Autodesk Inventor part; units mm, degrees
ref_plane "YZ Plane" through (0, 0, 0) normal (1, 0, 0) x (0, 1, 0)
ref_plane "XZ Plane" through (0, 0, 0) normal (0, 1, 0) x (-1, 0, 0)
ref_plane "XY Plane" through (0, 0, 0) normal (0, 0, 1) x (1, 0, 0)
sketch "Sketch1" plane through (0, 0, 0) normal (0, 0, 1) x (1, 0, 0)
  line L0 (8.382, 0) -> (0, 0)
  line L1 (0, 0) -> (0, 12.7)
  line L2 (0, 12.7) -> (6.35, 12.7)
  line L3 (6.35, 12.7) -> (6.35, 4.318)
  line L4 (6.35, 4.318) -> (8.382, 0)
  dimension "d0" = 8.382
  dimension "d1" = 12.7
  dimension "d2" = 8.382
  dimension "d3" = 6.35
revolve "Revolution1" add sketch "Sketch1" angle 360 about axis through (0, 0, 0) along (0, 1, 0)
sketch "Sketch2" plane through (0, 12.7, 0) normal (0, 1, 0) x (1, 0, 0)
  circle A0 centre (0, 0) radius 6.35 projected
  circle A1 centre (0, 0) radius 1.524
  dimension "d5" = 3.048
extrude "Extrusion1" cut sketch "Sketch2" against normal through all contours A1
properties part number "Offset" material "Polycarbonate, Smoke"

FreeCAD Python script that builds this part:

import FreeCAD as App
import Part
import Sketcher
Q = App.Units.Quantity


def add_polygon(sketch, points):
    """Adds a closed chain of lines whose ends are joined by coincident constraints."""
    first, n = sketch.GeometryCount, len(points)
    for a, b in zip(points, points[1:] + points[:1]):
        sketch.addGeometry(Part.LineSegment(App.Vector(*a, 0), App.Vector(*b, 0)), False)
    for i in range(n):
        sketch.addConstraint(Sketcher.Constraint("Coincident", first + i, 2, first + (i + 1) % n, 1))

doc = App.newDocument("Part")
body = doc.addObject("PartDesign::Body", "Body")

# Sketch on XY plane
sketch1 = body.newObject("Sketcher::SketchObject", "Sketch")
sketch1.AttachmentSupport = (doc.getObject("XY_Plane"), [""])
sketch1.MapMode = "FlatFace"
add_polygon(sketch1, [(0, 0), (8.382, 0), (6.35, 4.318), (6.35, 12.7), (0, 12.7)])  # lines 0-4
sketch1.addConstraint([
    Sketcher.Constraint("Horizontal", 0),
    Sketcher.Constraint("Vertical", 2),
    Sketcher.Constraint("Horizontal", 3),
    Sketcher.Constraint("Vertical", 4),
    Sketcher.Constraint("Coincident", 4, 2, -1, 1),
    Sketcher.Constraint("Equal", 0, 2),
    Sketcher.Constraint("DistanceY", 4, 2, 4, 1, Q("0.5 in")),
    Sketcher.Constraint("DistanceX", 0, 1, 0, 2, Q("0.33 in")),
    Sketcher.Constraint("DistanceX", 3, 2, 3, 1, Q("0.25 in")),
])
revolution = body.newObject("PartDesign::Revolution", "Revolution")
revolution.Profile = sketch1
revolution.ReferenceAxis = (sketch1, ["V_Axis"])
revolution.Angle = 360

# Sketch on XZ plane
sketch2 = body.newObject("Sketcher::SketchObject", "Sketch001")
sketch2.AttachmentSupport = (doc.getObject("XZ_Plane"), [""])
sketch2.MapMode = "FlatFace"
sketch2.AttachmentOffset = App.Placement(App.Vector(0, 0, -0.5 * 25.4), App.Rotation())
sketch2.addGeometry(Part.Circle(App.Vector(0, 0, 0), App.Vector(0, 0, 1), 1.524), False)
sketch2.addConstraint([
    Sketcher.Constraint("Coincident", 0, 3, -1, 1),
    Sketcher.Constraint("Diameter", 0, Q("0.12 in")),
])
pocket1 = body.newObject("PartDesign::Pocket", "Pocket")
pocket1.Profile = sketch2
pocket1.Type = "ThroughAll"
pocket1.Reversed = True

doc.recompute()
